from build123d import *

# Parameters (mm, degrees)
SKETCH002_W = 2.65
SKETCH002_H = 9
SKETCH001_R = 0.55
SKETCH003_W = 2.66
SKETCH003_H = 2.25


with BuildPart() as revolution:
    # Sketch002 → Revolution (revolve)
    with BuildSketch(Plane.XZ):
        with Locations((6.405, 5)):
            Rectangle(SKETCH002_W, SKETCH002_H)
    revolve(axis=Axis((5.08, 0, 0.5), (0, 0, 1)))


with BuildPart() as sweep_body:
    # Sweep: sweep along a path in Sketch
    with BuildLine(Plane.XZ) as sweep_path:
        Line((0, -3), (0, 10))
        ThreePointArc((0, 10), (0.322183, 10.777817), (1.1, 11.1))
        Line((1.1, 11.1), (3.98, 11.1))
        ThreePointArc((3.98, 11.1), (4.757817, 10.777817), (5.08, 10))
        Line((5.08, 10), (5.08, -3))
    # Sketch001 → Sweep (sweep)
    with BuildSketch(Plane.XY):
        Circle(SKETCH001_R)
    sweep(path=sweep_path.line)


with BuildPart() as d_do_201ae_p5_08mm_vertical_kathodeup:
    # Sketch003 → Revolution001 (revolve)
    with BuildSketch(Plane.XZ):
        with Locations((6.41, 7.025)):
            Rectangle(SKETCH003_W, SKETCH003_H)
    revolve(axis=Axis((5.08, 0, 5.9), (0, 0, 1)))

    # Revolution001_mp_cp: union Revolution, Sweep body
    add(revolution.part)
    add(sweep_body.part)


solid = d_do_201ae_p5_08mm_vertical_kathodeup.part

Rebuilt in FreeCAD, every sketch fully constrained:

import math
import FreeCAD as App
import Part
import Sketcher


def add_polygon(sketch, points):
    """Adds a closed chain of lines whose ends are joined by coincident constraints."""
    first, n = sketch.GeometryCount, len(points)
    for a, b in zip(points, points[1:] + points[:1]):
        sketch.addGeometry(Part.LineSegment(App.Vector(*a, 0), App.Vector(*b, 0)), False)
    for i in range(n):
        sketch.addConstraint(Sketcher.Constraint("Coincident", first + i, 2, first + (i + 1) % n, 1))

doc = App.newDocument("Part")
body = doc.addObject("PartDesign::Body", "Body")

sketch1 = body.newObject("Sketcher::SketchObject", "Sketch")
sketch1.AttachmentSupport = (doc.getObject("XZ_Plane"), [""])
sketch1.MapMode = "FlatFace"
add_polygon(sketch1, [(5.08, 9.5), (5.08, 0.5), (7.73, 0.5), (7.73, 9.5)])
sketch1.addGeometry(Part.LineSegment(App.Vector(5.08, 0.5, 0), App.Vector(5.08, 9.5, 0)), True)
sketch1.addConstraint(Sketcher.Constraint("Vertical", 0))
sketch1.addConstraint(Sketcher.Constraint("Horizontal", 1))
sketch1.addConstraint(Sketcher.Constraint("Vertical", 2))
sketch1.addConstraint(Sketcher.Constraint("Horizontal", 3))
sketch1.addConstraint(Sketcher.Constraint("Vertical", 4))
sketch1.addConstraint(Sketcher.Constraint("Coincident", 4, 1, 0, 2))
sketch1.addConstraint(Sketcher.Constraint("Horizontal", 2, 2, 4, 2))
sketch1.addConstraint(Sketcher.Constraint("DistanceY", 0, 2, 0, 1, 9.0))
sketch1.addConstraint(Sketcher.Constraint("DistanceX", 1, 1, 1, 2, 2.65))
sketch1.addConstraint(Sketcher.Constraint("DistanceY", -1, 1, 0, 2, 0.5))
sketch1.addConstraint(Sketcher.Constraint("DistanceX", -1, 1, 0, 2, 5.08))
revolution = body.newObject("PartDesign::Revolution", "Revolution")
revolution.Profile = sketch1
revolution.ReferenceAxis = (sketch1, ["Axis0"])
revolution.Angle = 360
body2 = doc.addObject("PartDesign::Body", "Body001")

sketch2 = body2.newObject("Sketcher::SketchObject", "Sketch001")
sketch2.AttachmentSupport = (doc.getObject("XY_Plane001"), [""])
sketch2.MapMode = "FlatFace"
sketch2.addGeometry(Part.Circle(App.Vector(0, 0, 0), App.Vector(0, 0, 1), 0.55), False)
sketch2.addConstraint(Sketcher.Constraint("Coincident", 0, 3, -1, 1))
sketch2.addConstraint(Sketcher.Constraint("Diameter", 0, 1.1))

sketch3 = body2.newObject("Sketcher::SketchObject", "Sketch002")
sketch3.AttachmentSupport = (doc.getObject("XZ_Plane001"), [""])
sketch3.MapMode = "FlatFace"
sketch3.addGeometry(Part.LineSegment(App.Vector(0, -3, 0), App.Vector(0, 10, 0)), False)
sketch3.addGeometry(Part.ArcOfCircle(Part.Circle(App.Vector(1.100002, 9.999998, 0), App.Vector(0, 0, 1), 1.100002), math.radians(90.000082), math.radians(179.999918)), False)
sketch3.addGeometry(Part.LineSegment(App.Vector(1.1, 11.1, 0), App.Vector(3.98, 11.1, 0)), False)
sketch3.addGeometry(Part.ArcOfCircle(Part.Circle(App.Vector(3.979998, 9.999998, 0), App.Vector(0, 0, 1), 1.100002), math.radians(0.000082), math.radians(89.999918)), False)
sketch3.addGeometry(Part.LineSegment(App.Vector(5.08, 10, 0), App.Vector(5.08, -3, 0)), False)
sketch3.addConstraint(Sketcher.Constraint("Tangent", 0, 2, 1, 2))
sketch3.addConstraint(Sketcher.Constraint("Tangent", 1, 1, 2, 1))
sketch3.addConstraint(Sketcher.Constraint("Tangent", 2, 2, 3, 2))
sketch3.addConstraint(Sketcher.Constraint("Tangent", 3, 1, 4, 1))
sketch3.addConstraint(Sketcher.Constraint("Vertical", 0))
sketch3.addConstraint(Sketcher.Constraint("Horizontal", 2))
sketch3.addConstraint(Sketcher.Constraint("Vertical", 4))
sketch3.addConstraint(Sketcher.Constraint("Equal", 1, 3))
sketch3.addConstraint(Sketcher.Constraint("PointOnObject", 0, 1, -2))
sketch3.addConstraint(Sketcher.Constraint("Horizontal", 0, 1, 4, 2))
sketch3.addConstraint(Sketcher.Constraint("Radius", 1, 1.100002))
sketch3.addConstraint(Sketcher.Constraint("DistanceY", 0, 1, 0, 2, 13.0))
sketch3.addConstraint(Sketcher.Constraint("DistanceY", -1, 1, 1, 3, 9.999998))
sketch3.addConstraint(Sketcher.Constraint("DistanceX", 2, 1, 2, 2, 2.88))
doc.recompute()

additivepipe = body2.newObject("PartDesign::AdditivePipe", "AdditivePipe")
additivepipe.Profile = sketch2
additivepipe.Spine = (sketch3, ["Edge1", "Edge2", "Edge3", "Edge4", "Edge5"])
body3 = doc.addObject("PartDesign::Body", "Body002")

sketch4 = body3.newObject("Sketcher::SketchObject", "Sketch003")
sketch4.AttachmentSupport = (doc.getObject("XZ_Plane002"), [""])
sketch4.MapMode = "FlatFace"
add_polygon(sketch4, [(5.08, 8.15), (5.08, 5.9), (7.74, 5.9), (7.74, 8.15)])
sketch4.addGeometry(Part.LineSegment(App.Vector(5.08, 5.9, 0), App.Vector(5.08, 8.15, 0)), True)
sketch4.addConstraint(Sketcher.Constraint("Vertical", 0))
sketch4.addConstraint(Sketcher.Constraint("Horizontal", 1))
sketch4.addConstraint(Sketcher.Constraint("Vertical", 2))
sketch4.addConstraint(Sketcher.Constraint("Horizontal", 3))
sketch4.addConstraint(Sketcher.Constraint("Vertical", 4))
sketch4.addConstraint(Sketcher.Constraint("Coincident", 4, 1, 0, 2))
sketch4.addConstraint(Sketcher.Constraint("Horizontal", 2, 2, 4, 2))
sketch4.addConstraint(Sketcher.Constraint("DistanceX", 1, 1, 1, 2, 2.66))
sketch4.addConstraint(Sketcher.Constraint("DistanceY", 0, 2, 0, 1, 2.25))
sketch4.addConstraint(Sketcher.Constraint("DistanceY", -1, 1, 0, 2, 5.9))
sketch4.addConstraint(Sketcher.Constraint("DistanceX", -1, 1, 0, 2, 5.08))
revolution2 = body3.newObject("PartDesign::Revolution", "Revolution001")
revolution2.Profile = sketch4
revolution2.ReferenceAxis = (sketch4, ["Axis0"])
revolution2.Angle = 360
doc.recompute()

boolean = body3.newObject("PartDesign::Boolean", "Boolean")
boolean.Type = "Fuse"
boolean.addObjects([body])
doc.recompute()

boolean2 = body3.newObject("PartDesign::Boolean", "Boolean001")
boolean2.Type = "Fuse"
boolean2.addObjects([body2])

doc.recompute()
